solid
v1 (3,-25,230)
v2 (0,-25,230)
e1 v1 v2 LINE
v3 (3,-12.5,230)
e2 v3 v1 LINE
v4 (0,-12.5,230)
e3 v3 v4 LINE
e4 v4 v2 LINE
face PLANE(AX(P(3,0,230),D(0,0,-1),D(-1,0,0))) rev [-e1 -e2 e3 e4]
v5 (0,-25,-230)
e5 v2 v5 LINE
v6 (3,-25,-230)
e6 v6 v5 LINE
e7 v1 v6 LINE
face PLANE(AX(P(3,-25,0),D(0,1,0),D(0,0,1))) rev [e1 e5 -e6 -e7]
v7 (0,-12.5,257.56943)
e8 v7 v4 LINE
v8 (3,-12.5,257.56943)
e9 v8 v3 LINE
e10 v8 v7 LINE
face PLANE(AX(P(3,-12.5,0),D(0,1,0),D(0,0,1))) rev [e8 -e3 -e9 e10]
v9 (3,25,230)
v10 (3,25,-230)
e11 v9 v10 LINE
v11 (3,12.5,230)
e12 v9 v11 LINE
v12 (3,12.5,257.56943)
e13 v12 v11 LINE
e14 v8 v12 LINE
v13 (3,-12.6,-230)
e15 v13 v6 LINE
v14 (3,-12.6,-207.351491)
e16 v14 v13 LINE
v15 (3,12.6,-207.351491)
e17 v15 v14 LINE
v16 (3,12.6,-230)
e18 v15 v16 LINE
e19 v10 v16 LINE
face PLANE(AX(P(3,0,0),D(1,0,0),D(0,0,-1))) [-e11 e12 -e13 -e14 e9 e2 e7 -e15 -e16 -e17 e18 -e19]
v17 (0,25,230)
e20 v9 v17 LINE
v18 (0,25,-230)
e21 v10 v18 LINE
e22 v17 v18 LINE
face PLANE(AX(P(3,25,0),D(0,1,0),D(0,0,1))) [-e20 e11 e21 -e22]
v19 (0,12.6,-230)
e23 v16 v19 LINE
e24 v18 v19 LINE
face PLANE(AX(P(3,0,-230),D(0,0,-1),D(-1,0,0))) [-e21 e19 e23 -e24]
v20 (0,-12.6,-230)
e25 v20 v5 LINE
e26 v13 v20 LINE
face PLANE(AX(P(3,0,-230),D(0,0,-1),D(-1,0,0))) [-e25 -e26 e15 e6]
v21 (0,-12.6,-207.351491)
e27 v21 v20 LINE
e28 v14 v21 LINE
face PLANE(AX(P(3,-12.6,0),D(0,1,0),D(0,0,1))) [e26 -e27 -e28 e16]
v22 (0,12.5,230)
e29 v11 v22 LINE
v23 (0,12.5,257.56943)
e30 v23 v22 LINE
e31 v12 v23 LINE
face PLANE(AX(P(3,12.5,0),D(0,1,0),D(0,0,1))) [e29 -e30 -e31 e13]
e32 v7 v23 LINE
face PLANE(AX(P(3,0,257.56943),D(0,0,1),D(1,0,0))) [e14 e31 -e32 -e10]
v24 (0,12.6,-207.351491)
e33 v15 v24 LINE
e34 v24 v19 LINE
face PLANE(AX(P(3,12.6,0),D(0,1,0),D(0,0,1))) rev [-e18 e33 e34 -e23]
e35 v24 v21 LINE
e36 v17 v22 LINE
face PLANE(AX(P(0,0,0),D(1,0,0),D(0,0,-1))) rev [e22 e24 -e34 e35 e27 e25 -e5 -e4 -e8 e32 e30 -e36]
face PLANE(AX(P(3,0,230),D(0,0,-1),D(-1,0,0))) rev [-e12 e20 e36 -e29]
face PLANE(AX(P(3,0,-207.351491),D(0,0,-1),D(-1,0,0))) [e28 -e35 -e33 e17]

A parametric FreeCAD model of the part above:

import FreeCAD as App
import Part
import Sketcher
from FreeCAD import Vector
Q = App.Units.Quantity

doc = App.newDocument("Part")
body = doc.addObject("PartDesign::Body", "Body")

# Sketch on YZ plane
sketch1 = doc.addObject("Sketcher::SketchObject", "Sketch")
body.addObject(sketch1)
sketch1.AttachmentSupport = (doc.YZ_Plane, [""])
sketch1.MapMode = "FlatFace"
sketch1.addGeometry([
    Part.LineSegment(Vector(12, 258, 0), Vector(-12, 258, 0)),  # 0
    Part.LineSegment(Vector(-12, 258, 0), Vector(-12, 230, 0)),  # 1
    Part.LineSegment(Vector(-12, 230, 0), Vector(-25, 230, 0)),  # 2
    Part.LineSegment(Vector(-25, 230, 0), Vector(-25, -230, 0)),  # 3
    Part.LineSegment(Vector(-25, -230, 0), Vector(-13, -230, 0)),  # 4
    Part.LineSegment(Vector(-13, -230, 0), Vector(-13, -207, 0)),  # 5
    Part.LineSegment(Vector(-13, -207, 0), Vector(13, -207, 0)),  # 6
    Part.LineSegment(Vector(13, -207, 0), Vector(13, -230, 0)),  # 7
    Part.LineSegment(Vector(13, -230, 0), Vector(25, -230, 0)),  # 8
    Part.LineSegment(Vector(25, -230, 0), Vector(25, 230, 0)),  # 9
    Part.LineSegment(Vector(25, 230, 0), Vector(12, 230, 0)),  # 10
    Part.LineSegment(Vector(12, 230, 0), Vector(12, 258, 0)),  # 11
], False)
sketch1.addConstraint([
    Sketcher.Constraint("Coincident", 0, 2, 1, 1),
    Sketcher.Constraint("Coincident", 1, 2, 2, 1),
    Sketcher.Constraint("Coincident", 2, 2, 3, 1),
    Sketcher.Constraint("Coincident", 3, 2, 4, 1),
    Sketcher.Constraint("Coincident", 4, 2, 5, 1),
    Sketcher.Constraint("Coincident", 5, 2, 6, 1),
    Sketcher.Constraint("Coincident", 6, 2, 7, 1),
    Sketcher.Constraint("Coincident", 7, 2, 8, 1),
    Sketcher.Constraint("Coincident", 8, 2, 9, 1),
    Sketcher.Constraint("Coincident", 9, 2, 10, 1),
    Sketcher.Constraint("Coincident", 10, 2, 11, 1),
    Sketcher.Constraint("Coincident", 11, 2, 0, 1),
    Sketcher.Constraint("Horizontal", 0),
    Sketcher.Constraint("Vertical", 1),
    Sketcher.Constraint("Horizontal", 2),
    Sketcher.Constraint("Vertical", 3),
    Sketcher.Constraint("Horizontal", 4),
    Sketcher.Constraint("Vertical", 5),
    Sketcher.Constraint("Horizontal", 6),
    Sketcher.Constraint("Vertical", 7),
    Sketcher.Constraint("Horizontal", 8),
    Sketcher.Constraint("Vertical", 9),
    Sketcher.Constraint("Horizontal", 10),
    Sketcher.Constraint("Vertical", 11),
    Sketcher.Constraint("Symmetric", 2, 2, 8, 2, -1, 1),
    Sketcher.Constraint("Symmetric", 4, 2, 7, 2, -2),
    Sketcher.Constraint("Symmetric", 1, 2, 10, 2, -2),
    Sketcher.Constraint("DistanceX", 0, 2, 0, 1, Q("25 mm")),
    Sketcher.Constraint("DistanceY", 3, 2, 3, 1, Q("460 mm")),
    Sketcher.Constraint("DistanceX", 2, 2, 2, 1, Q("12.5 mm")),
    Sketcher.Constraint("DistanceX", 4, 1, 4, 2, Q("12.4 mm")),
    Sketcher.Constraint("DistanceY", 1, 2, 1, 1, Q("27.56943 mm")),
    Sketcher.Constraint("DistanceY", 5, 1, 5, 2, Q("22.648509 mm")),
])
pad1 = doc.addObject("PartDesign::Pad", "Pad")
body.addObject(pad1)
pad1.Profile = sketch1
pad1.Length = 3

doc.recompute()
